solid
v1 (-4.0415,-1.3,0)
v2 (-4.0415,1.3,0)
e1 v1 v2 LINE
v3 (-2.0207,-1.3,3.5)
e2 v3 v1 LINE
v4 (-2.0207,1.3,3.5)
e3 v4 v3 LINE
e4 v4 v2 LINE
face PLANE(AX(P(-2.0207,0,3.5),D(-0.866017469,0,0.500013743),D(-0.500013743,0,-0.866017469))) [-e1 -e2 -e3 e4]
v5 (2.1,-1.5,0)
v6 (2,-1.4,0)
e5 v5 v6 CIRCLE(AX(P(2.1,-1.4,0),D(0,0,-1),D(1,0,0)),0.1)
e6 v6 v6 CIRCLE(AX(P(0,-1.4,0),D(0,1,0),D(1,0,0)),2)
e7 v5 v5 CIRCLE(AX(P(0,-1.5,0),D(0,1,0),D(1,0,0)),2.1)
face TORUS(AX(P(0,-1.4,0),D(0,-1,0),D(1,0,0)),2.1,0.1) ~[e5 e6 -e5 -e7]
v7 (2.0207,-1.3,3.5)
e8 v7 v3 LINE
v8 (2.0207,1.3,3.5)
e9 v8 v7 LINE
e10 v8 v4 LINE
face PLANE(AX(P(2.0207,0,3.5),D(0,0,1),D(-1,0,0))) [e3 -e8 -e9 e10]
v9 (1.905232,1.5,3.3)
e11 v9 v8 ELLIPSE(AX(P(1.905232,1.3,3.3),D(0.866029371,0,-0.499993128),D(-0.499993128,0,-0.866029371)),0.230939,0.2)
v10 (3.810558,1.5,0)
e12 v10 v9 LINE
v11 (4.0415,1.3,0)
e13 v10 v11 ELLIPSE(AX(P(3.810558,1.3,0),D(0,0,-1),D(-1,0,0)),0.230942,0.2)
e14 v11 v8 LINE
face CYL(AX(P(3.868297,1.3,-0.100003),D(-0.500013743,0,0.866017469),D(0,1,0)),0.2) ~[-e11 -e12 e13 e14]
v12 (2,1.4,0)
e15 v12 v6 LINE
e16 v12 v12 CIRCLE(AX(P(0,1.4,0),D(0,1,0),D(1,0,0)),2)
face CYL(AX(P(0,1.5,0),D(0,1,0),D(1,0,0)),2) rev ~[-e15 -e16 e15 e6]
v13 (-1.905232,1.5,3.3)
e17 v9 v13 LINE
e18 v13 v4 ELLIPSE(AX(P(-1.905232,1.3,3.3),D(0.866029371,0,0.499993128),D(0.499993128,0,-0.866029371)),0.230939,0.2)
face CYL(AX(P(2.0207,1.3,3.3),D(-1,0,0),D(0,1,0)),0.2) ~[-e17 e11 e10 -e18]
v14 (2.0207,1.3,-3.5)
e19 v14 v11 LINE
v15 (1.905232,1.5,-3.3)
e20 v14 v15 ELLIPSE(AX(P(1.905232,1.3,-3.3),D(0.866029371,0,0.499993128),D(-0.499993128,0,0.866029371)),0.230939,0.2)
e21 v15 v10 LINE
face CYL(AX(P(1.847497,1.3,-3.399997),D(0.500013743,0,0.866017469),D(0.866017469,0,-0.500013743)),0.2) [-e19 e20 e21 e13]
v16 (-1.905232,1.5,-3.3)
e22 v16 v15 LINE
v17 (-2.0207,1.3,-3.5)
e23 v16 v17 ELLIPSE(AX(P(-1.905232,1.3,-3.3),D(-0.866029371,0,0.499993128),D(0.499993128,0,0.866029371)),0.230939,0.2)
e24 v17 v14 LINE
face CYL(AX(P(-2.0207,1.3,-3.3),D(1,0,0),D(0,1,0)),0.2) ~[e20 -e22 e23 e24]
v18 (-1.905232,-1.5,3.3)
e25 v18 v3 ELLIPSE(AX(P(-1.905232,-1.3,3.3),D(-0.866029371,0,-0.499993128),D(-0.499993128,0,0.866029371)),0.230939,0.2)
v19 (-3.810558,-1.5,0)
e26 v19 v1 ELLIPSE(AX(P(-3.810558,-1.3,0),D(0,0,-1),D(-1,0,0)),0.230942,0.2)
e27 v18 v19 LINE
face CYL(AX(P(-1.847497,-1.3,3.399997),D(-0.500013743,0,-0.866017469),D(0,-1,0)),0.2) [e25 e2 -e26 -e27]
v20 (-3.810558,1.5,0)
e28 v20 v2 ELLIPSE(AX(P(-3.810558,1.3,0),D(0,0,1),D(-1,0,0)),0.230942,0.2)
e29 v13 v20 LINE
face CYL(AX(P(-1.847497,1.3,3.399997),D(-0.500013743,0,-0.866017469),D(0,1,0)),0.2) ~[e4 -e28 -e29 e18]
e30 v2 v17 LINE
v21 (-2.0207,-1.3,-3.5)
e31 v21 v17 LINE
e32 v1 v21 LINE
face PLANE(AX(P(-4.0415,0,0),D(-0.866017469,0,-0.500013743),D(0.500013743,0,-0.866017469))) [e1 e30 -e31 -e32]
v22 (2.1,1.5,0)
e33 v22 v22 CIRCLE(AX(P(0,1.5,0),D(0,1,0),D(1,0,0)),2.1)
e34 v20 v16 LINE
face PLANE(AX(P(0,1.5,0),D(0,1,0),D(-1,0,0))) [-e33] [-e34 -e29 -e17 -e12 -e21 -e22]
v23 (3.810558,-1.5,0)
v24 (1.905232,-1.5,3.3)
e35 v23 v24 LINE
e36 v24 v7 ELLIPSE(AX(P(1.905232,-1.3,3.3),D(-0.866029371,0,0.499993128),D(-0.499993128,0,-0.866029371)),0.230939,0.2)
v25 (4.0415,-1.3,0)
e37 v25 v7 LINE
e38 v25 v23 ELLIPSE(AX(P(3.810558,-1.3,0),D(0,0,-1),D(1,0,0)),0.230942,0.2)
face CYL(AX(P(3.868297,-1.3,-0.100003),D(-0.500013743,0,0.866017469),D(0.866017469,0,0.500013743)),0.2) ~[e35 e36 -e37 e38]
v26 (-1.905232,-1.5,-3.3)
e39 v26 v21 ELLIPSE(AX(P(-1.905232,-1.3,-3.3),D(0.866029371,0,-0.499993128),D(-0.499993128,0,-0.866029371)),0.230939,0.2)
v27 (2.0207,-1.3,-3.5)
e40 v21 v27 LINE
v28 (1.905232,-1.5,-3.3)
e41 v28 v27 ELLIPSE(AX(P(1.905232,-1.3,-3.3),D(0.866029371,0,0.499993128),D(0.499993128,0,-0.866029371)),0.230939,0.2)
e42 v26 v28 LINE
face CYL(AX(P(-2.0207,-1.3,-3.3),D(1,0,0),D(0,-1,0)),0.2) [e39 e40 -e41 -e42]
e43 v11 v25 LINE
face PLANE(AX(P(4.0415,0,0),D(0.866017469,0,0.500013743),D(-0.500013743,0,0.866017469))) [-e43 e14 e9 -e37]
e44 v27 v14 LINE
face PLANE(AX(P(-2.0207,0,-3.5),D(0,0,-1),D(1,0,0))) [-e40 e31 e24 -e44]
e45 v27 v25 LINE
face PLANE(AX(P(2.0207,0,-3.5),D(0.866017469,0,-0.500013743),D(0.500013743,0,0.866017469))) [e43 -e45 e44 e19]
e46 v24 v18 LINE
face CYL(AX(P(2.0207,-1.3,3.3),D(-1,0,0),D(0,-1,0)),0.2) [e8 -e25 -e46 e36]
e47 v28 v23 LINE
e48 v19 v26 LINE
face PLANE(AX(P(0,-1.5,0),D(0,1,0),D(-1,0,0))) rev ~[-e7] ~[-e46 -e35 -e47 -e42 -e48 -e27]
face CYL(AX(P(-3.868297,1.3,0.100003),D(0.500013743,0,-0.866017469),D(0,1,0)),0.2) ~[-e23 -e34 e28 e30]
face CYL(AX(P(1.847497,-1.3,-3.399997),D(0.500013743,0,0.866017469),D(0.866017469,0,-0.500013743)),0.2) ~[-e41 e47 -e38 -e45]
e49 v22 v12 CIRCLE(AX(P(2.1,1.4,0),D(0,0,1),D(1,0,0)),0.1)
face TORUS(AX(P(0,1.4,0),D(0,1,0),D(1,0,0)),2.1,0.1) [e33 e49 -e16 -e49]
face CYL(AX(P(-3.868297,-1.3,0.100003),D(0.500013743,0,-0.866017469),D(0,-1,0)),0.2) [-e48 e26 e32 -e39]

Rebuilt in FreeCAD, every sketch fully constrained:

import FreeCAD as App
import Part
import Sketcher
Q = App.Units.Quantity


def edges_at(feature, points):
    """Names of the edges that pass closest to the given points."""
    edges = feature.Shape.Edges
    near = lambda p: min(range(len(edges)), key=lambda i: edges[i].distToShape(Part.Vertex(*p))[0])
    return sorted({f"Edge{near(p) + 1}" for p in points})

doc = App.newDocument("Part")
body = doc.addObject("PartDesign::Body", "Body")

# Sketch on XZ plane
sketch1 = body.newObject("Sketcher::SketchObject", "Sketch")
sketch1.AttachmentSupport = (doc.getObject("XZ_Plane"), [""])
sketch1.MapMode = "FlatFace"
sketch1.addGeometry([
    Part.LineSegment(App.Vector(4, 0, 0), App.Vector(2, -3.5, 0)),  # 0
    Part.LineSegment(App.Vector(2, -3.5, 0), App.Vector(-2, -3.5, 0)),  # 1
    Part.LineSegment(App.Vector(-2, -3.5, 0), App.Vector(-4, 0, 0)),  # 2
    Part.LineSegment(App.Vector(-4, 0, 0), App.Vector(-2, 3.5, 0)),  # 3
    Part.LineSegment(App.Vector(-2, 3.5, 0), App.Vector(2, 3.5, 0)),  # 4
    Part.LineSegment(App.Vector(2, 3.5, 0), App.Vector(4, 0, 0)),  # 5
], False)
sketch1.addConstraint([
    Sketcher.Constraint("Coincident", 0, 2, 1, 1),
    Sketcher.Constraint("Coincident", 1, 2, 2, 1),
    Sketcher.Constraint("Coincident", 2, 2, 3, 1),
    Sketcher.Constraint("Coincident", 3, 2, 4, 1),
    Sketcher.Constraint("Coincident", 4, 2, 5, 1),
    Sketcher.Constraint("Coincident", 5, 2, 0, 1),
    Sketcher.Constraint("Horizontal", 1),
    Sketcher.Constraint("Horizontal", 4),
    Sketcher.Constraint("Symmetric", 0, 2, 3, 2, -1, 1),
    Sketcher.Constraint("Symmetric", 2, 2, 5, 2, -1, 1),
    Sketcher.Constraint("PointOnObject", 2, 2, -1),
    Sketcher.Constraint("Parallel", 2, 5),
    Sketcher.Constraint("Vertical", 1, 2, 3, 2),
    Sketcher.Constraint("DistanceY", 1, 2, 3, 2, Q("7 mm")),
    Sketcher.Constraint("Angle", 0, Q("-120.001 deg")),
    Sketcher.Constraint("DistanceX", 1, 2, 1, 1, Q("4.0414 mm")),
])
pad1 = body.newObject("PartDesign::Pad", "Pad")
pad1.Profile = sketch1
pad1.Length = 3
pad1.Midplane = True

# Sketch on XZ plane
sketch2 = body.newObject("Sketcher::SketchObject", "Sketch001")
sketch2.AttachmentSupport = (doc.getObject("XZ_Plane"), [""])
sketch2.MapMode = "FlatFace"
sketch2.AttachmentOffset = App.Placement(App.Vector(0, 0, -1.5), App.Rotation())
sketch2.addGeometry(Part.Circle(App.Vector(0, 0, 0), App.Vector(0, 0, 1), 2), False)
sketch2.addConstraint([
    Sketcher.Constraint("Coincident", 0, 3, -1, 1),
    Sketcher.Constraint("Diameter", 0, Q("4 mm")),
])
pocket1 = body.newObject("PartDesign::Pocket", "Pocket")
pocket1.Profile = sketch2
pocket1.Length = 3
pocket1.Reversed = True
doc.recompute()

fillet = body.newObject("PartDesign::Fillet", "Fillet")
fillet.Base = (pocket1, edges_at(pocket1, [
    (-3.031, 1.5, 1.75),
    (0, 1.5, 3.5),
    (3.031, 1.5, 1.75),
    (3.031, 1.5, -1.75),
    (0, 1.5, -3.5),
    (-3.031, 1.5, -1.75),
    (0, -1.5, 3.5),
    (-3.031, -1.5, 1.75),
    (-3.031, -1.5, -1.75),
    (0, -1.5, -3.5),
    (3.031, -1.5, -1.75),
    (3.031, -1.5, 1.75),
]))
fillet.Radius = 0.2
doc.recompute()

fillet2 = body.newObject("PartDesign::Fillet", "Fillet001")
fillet2.Base = (fillet, edges_at(fillet, [(-2, 1.5, 0), (-2, -1.5, 0)]))
fillet2.Radius = 0.1

doc.recompute()
